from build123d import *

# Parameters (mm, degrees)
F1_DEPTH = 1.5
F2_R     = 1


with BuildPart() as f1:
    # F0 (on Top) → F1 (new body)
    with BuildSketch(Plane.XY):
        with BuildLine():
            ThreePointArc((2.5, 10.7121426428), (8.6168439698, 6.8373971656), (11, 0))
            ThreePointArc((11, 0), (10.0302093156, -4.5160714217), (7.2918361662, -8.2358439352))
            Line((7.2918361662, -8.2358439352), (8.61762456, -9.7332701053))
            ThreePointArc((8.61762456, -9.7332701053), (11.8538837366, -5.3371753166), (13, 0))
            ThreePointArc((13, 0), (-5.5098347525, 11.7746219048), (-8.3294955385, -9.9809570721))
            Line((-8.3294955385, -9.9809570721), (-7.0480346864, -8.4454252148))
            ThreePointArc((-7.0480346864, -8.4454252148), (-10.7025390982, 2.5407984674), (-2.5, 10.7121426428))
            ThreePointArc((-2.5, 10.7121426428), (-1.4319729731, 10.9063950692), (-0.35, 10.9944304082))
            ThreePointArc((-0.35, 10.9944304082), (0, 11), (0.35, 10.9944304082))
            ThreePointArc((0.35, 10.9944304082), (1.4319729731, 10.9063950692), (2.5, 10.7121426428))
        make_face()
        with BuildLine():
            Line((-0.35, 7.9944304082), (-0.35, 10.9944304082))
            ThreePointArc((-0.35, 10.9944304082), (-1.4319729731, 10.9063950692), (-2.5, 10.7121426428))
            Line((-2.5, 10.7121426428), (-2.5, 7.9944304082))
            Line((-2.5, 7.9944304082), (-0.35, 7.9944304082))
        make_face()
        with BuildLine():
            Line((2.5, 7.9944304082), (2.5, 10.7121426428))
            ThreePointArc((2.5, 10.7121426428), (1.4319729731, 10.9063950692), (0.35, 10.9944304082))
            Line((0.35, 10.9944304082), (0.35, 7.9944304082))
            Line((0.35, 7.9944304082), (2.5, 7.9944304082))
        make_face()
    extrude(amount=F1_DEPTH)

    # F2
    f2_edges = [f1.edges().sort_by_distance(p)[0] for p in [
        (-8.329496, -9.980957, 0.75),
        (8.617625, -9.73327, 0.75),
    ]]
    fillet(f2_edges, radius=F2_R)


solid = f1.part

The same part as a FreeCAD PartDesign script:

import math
import FreeCAD as App
import Part
import Sketcher

V = App.Vector
Q = App.Units.Quantity


def edges_at(feature, points):
    """Names of the edges that pass closest to the given points."""
    edges = feature.Shape.Edges
    near = lambda p: min(range(len(edges)), key=lambda i: edges[i].distToShape(Part.Vertex(*p))[0])
    return sorted({f"Edge{near(p) + 1}" for p in points})

doc = App.newDocument("Part")
params = doc.addObject("Spreadsheet::Sheet", "Params")
for row, (alias, value) in enumerate([
    ("sketch1_radius", "11 mm"),
    ("sketch1_radius2", "13 mm"),
    ("sketch1_height", "3 mm"),
    ("sketch1_width", "2.15 mm"),
    ("pad1_length", "1.5 mm"),
    ("fillet_radius", "1 mm"),
], start=1):
    params.set(f"A{row}", alias)
    params.set(f"B{row}", "=" + value)
    params.setAlias(f"B{row}", alias)

body = doc.addObject("PartDesign::Body", "Body")

sketch1 = body.newObject("Sketcher::SketchObject", "Sketch")
sketch1.AttachmentSupport = (doc.getObject("XY_Plane"), [""])
sketch1.MapMode = "FlatFace"
sketch1.addGeometry([
    Part.ArcOfCircle(Part.Circle(V(0, 0, 0), V(0, 0, 1), 11), math.radians(0), math.radians(77)),
    Part.ArcOfCircle(Part.Circle(V(0, 0, 0), V(0, 0, 1), 11), math.radians(-48), math.radians(0)),
    Part.LineSegment(V(7.3, -8.2, 0), V(8.6, -9.7, 0)),
    Part.ArcOfCircle(Part.Circle(V(0, 0, 0), V(0, 0, 1), 13), math.radians(-48), math.radians(0)),
    Part.ArcOfCircle(Part.Circle(V(0, 0, 0), V(0, 0, 1), 13), math.radians(0), math.radians(230)),
    Part.LineSegment(V(-8.3, -10, 0), V(-7, -8.4, 0)),
    Part.ArcOfCircle(Part.Circle(V(0, 0, 0), V(0, 0, 1), 11), math.radians(103), math.radians(230)),
    Part.LineSegment(V(-2.5, 10.7, 0), V(-2.5, 8, 0)),
    Part.LineSegment(V(-2.5, 8, 0), V(-0.3, 8, 0)),
    Part.LineSegment(V(-0.3, 8, 0), V(-0.3, 11, 0)),
    Part.ArcOfCircle(Part.Circle(V(0, 0, 0), V(0, 0, 1), 11), math.radians(88.18), math.radians(91.82)),
    Part.LineSegment(V(0.3, 11, 0), V(0.3, 8, 0)),
    Part.LineSegment(V(0.3, 8, 0), V(2.5, 8, 0)),
    Part.LineSegment(V(2.5, 8, 0), V(2.5, 10.7, 0)),
], False)
sketch1.addConstraint([
    Sketcher.Constraint("Tangent", 0, 1, 1, 2),
    Sketcher.Constraint("Coincident", 1, 1, 2, 1),
    Sketcher.Constraint("Coincident", 2, 2, 3, 1),
    Sketcher.Constraint("Tangent", 3, 2, 4, 1),
    Sketcher.Constraint("Coincident", 4, 2, 5, 1),
    Sketcher.Constraint("Coincident", 5, 2, 6, 2),
    Sketcher.Constraint("Coincident", 6, 1, 7, 1),
    Sketcher.Constraint("Coincident", 7, 2, 8, 1),
    Sketcher.Constraint("Coincident", 8, 2, 9, 1),
    Sketcher.Constraint("Coincident", 9, 2, 10, 2),
    Sketcher.Constraint("Coincident", 10, 1, 11, 1),
    Sketcher.Constraint("Coincident", 11, 2, 12, 1),
    Sketcher.Constraint("Coincident", 12, 2, 13, 1),
    Sketcher.Constraint("Coincident", 13, 2, 0, 2),
    Sketcher.Constraint("Vertical", 7),
    Sketcher.Constraint("Horizontal", 8),
    Sketcher.Constraint("Vertical", 9),
    Sketcher.Constraint("Vertical", 11),
    Sketcher.Constraint("Horizontal", 12),
    Sketcher.Constraint("Vertical", 13),
    Sketcher.Constraint("Coincident", 0, 3, -1, 1),
    Sketcher.Constraint("Coincident", 3, 3, -1, 1),
    Sketcher.Constraint("Coincident", 6, 3, -1, 1),
    Sketcher.Constraint("Coincident", 10, 3, -1, 1),
    Sketcher.Constraint("Equal", 0, 1),
    Sketcher.Constraint("Equal", 3, 4),
    Sketcher.Constraint("Equal", 1, 6),
    Sketcher.Constraint("Equal", 6, 10),
    Sketcher.Constraint("Symmetric", 8, 2, 11, 2, -2),
    Sketcher.Constraint("PointOnObject", 0, 1, -1),
    Sketcher.Constraint("PointOnObject", 3, 2, -1),
    Sketcher.Constraint("Horizontal", 6, 1, 13, 2),
    Sketcher.Constraint("Radius", 0, Q("11 mm")),
    Sketcher.Constraint("Radius", 3, Q("13 mm")),
    Sketcher.Constraint("DistanceY", 9, 1, 9, 2, Q("3 mm")),
    Sketcher.Constraint("DistanceX", 7, 2, 12, 2, Q("5 mm")),
    Sketcher.Constraint("DistanceX", 8, 1, 8, 2, Q("2.15 mm")),
    Sketcher.Constraint("DistanceY", 2, 2, -1, 1, Q("9.73327 mm")),
    Sketcher.Constraint("DistanceX", 1, 1, 2, 2, Q("1.325788 mm")),
    Sketcher.Constraint("DistanceX", 4, 2, 5, 2, Q("1.281461 mm")),
    Sketcher.Constraint("DistanceX", 4, 2, -1, 1, Q("8.329496 mm")),
])
sketch1.setExpression("Constraints[32]", "Params.sketch1_radius")
sketch1.setExpression("Constraints[33]", "Params.sketch1_radius2")
sketch1.setExpression("Constraints[34]", "Params.sketch1_height")
sketch1.setExpression("Constraints[36]", "Params.sketch1_width")
pad1 = body.newObject("PartDesign::Pad", "Pad")
pad1.Profile = sketch1
pad1.setExpression("Length", "Params.pad1_length")
doc.recompute()

fillet = body.newObject("PartDesign::Fillet", "Fillet")
fillet.Base = (pad1, edges_at(pad1, [(-8.329, -9.981, 0.75), (8.618, -9.733, 0.75)]))
fillet.setExpression("Radius", "Params.fillet_radius")

doc.recompute()
